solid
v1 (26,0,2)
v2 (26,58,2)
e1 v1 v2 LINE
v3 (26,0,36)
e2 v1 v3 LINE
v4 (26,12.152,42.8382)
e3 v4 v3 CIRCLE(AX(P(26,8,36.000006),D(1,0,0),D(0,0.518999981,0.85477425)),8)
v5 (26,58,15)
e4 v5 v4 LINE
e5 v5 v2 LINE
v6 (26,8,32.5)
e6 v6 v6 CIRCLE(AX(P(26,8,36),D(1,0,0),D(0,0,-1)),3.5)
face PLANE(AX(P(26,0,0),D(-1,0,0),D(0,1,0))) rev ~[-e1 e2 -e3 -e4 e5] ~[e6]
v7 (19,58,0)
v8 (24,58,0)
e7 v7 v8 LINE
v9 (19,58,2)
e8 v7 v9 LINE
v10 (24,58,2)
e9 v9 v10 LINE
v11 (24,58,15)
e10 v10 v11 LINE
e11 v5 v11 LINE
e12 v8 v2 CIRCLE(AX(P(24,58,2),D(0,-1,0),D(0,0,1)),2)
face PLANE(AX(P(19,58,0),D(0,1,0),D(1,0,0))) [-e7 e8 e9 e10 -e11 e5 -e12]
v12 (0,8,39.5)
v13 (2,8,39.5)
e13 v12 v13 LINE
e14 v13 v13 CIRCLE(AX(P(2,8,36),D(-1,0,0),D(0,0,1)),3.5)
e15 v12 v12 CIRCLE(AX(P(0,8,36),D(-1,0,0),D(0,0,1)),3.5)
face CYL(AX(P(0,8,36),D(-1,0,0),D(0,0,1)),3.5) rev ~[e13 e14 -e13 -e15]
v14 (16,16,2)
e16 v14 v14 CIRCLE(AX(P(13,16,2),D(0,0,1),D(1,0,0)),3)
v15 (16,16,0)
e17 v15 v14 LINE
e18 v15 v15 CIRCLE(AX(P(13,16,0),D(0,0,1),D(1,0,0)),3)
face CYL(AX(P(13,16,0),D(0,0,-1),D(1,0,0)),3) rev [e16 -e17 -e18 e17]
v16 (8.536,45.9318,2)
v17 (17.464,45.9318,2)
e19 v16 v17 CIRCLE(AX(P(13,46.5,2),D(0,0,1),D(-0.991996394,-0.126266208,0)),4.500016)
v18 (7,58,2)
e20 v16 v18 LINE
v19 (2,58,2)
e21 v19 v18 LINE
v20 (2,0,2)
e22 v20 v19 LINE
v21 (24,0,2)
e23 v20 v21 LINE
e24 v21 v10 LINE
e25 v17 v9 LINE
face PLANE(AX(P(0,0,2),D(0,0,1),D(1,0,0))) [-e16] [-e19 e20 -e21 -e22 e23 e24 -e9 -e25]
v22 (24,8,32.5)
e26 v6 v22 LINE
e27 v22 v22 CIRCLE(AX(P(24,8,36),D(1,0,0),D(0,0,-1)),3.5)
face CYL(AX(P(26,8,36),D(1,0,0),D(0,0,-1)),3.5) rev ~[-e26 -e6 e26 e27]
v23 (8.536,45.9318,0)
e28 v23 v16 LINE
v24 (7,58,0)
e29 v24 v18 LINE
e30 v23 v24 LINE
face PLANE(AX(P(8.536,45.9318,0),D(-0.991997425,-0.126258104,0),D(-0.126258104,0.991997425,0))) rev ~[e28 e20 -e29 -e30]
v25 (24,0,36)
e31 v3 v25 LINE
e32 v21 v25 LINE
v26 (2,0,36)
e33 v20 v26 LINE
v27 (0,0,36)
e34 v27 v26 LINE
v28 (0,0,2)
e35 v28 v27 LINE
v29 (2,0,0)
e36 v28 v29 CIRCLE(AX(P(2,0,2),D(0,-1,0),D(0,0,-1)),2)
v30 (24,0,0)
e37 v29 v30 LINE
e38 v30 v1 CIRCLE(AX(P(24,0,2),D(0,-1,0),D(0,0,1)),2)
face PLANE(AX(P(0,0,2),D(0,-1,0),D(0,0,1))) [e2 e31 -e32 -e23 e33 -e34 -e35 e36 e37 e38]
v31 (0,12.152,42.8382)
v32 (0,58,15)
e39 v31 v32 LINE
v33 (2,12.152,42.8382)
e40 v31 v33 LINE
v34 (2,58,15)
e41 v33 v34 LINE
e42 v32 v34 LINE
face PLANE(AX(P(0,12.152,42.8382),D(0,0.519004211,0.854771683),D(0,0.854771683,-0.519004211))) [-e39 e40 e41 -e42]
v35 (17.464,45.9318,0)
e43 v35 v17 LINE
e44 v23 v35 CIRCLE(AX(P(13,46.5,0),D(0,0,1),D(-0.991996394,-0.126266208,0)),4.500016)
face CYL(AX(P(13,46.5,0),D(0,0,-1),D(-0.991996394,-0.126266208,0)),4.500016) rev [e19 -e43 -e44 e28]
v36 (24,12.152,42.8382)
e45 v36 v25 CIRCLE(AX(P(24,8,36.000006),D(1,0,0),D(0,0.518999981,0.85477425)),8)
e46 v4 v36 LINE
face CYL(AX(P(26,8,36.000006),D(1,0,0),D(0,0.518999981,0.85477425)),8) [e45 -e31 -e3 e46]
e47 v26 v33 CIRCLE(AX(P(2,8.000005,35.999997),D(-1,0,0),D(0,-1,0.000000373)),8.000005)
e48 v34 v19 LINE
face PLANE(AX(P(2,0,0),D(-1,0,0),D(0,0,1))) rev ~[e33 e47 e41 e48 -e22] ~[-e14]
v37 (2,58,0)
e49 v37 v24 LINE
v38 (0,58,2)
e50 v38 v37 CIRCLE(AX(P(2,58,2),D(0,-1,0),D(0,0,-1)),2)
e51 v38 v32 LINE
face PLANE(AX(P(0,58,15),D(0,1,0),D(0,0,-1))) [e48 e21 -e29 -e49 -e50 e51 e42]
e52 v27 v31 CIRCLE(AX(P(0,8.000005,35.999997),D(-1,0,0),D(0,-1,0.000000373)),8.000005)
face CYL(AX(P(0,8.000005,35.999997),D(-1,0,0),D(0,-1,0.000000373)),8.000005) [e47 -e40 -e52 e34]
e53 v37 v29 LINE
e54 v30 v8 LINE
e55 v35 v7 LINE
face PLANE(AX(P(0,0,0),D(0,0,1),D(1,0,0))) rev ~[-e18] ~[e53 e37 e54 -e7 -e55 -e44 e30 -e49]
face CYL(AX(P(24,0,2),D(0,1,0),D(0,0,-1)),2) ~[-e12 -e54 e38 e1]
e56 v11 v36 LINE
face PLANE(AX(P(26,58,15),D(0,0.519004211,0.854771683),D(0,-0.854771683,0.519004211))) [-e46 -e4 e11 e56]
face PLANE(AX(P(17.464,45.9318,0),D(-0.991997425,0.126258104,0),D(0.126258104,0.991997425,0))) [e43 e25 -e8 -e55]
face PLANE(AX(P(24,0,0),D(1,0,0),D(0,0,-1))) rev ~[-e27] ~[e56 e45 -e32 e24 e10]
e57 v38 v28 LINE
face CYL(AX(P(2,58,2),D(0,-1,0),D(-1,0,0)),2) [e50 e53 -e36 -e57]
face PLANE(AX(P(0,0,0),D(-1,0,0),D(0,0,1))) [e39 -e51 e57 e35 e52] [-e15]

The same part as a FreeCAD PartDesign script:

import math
import FreeCAD as App
import Part
import Sketcher

V = App.Vector
Q = App.Units.Quantity


def edges_at(feature, points):
    """Names of the edges that pass closest to the given points."""
    edges = feature.Shape.Edges
    near = lambda p: min(range(len(edges)), key=lambda i: edges[i].distToShape(Part.Vertex(*p))[0])
    return sorted({f"Edge{near(p) + 1}" for p in points})

doc = App.newDocument("Part")
body = doc.addObject("PartDesign::Body", "Body")

# Sketch on XY plane
sketch1 = body.newObject("Sketcher::SketchObject", "Sketch")
sketch1.AttachmentSupport = (doc.getObject("XY_Plane"), [""])
sketch1.MapMode = "FlatFace"
sketch1.addGeometry([
    Part.LineSegment(V(0, 58, 0), V(0, 0, 0)),  # 0
    Part.LineSegment(V(0, 0, 0), V(26, 0, 0)),  # 1
    Part.LineSegment(V(26, 0, 0), V(26, 58, 0)),  # 2
    Part.LineSegment(V(26, 58, 0), V(19, 58, 0)),  # 3
    Part.LineSegment(V(19, 58, 0), V(17.464, 45.9318, 0)),  # 4
    Part.ArcOfCircle(Part.Circle(V(13, 46.5, 0), V(0, 0, 1), 4.500016), math.radians(-172.746116), math.radians(-7.253884)),  # 5
    Part.LineSegment(V(8.536, 45.9318, 0), V(7, 58, 0)),  # 6
    Part.LineSegment(V(7, 58, 0), V(0, 58, 0)),  # 7
    Part.Circle(V(13, 16, 0), V(0, 0, 1), 3),  # 8
], False)
sketch1.addConstraint([
    Sketcher.Constraint("Coincident", 0, 2, 1, 1),
    Sketcher.Constraint("Coincident", 1, 2, 2, 1),
    Sketcher.Constraint("Coincident", 2, 2, 3, 1),
    Sketcher.Constraint("Coincident", 3, 2, 4, 1),
    Sketcher.Constraint("Tangent", 4, 2, 5, 2),
    Sketcher.Constraint("Tangent", 5, 1, 6, 1),
    Sketcher.Constraint("Coincident", 6, 2, 7, 1),
    Sketcher.Constraint("Coincident", 7, 2, 0, 1),
    Sketcher.Constraint("Vertical", 0),
    Sketcher.Constraint("Horizontal", 1),
    Sketcher.Constraint("Vertical", 2),
    Sketcher.Constraint("Horizontal", 3),
    Sketcher.Constraint("Horizontal", 7),
    Sketcher.Constraint("Coincident", 0, 2, -1, 1),
    Sketcher.Constraint("Horizontal", 4, 2, 5, 1),
    Sketcher.Constraint("Horizontal", 3, 2, 6, 2),
    Sketcher.Constraint("Vertical", 5, 3, 8, 3),
    Sketcher.Constraint("Equal", 3, 7),
    Sketcher.Constraint("Diameter", 8, Q("6 mm")),
    Sketcher.Constraint("Radius", 5, Q("4.5 mm")),
    Sketcher.Constraint("DistanceX", 1, 1, 1, 2, Q("26 mm")),
    Sketcher.Constraint("DistanceY", 0, 2, 0, 1, Q("58 mm")),
    Sketcher.Constraint("DistanceY", -1, 1, 8, 3, Q("16 mm")),
    Sketcher.Constraint("DistanceX", 5, 3, 3, 2, Q("6 mm")),
    Sketcher.Constraint("DistanceY", 5, 3, 2, 2, Q("11.5 mm")),
])
pad1 = body.newObject("PartDesign::Pad", "Pad")
pad1.Profile = sketch1
pad1.Length = 2

# Sketch on YZ plane
sketch2 = body.newObject("Sketcher::SketchObject", "Sketch001")
sketch2.AttachmentSupport = (doc.getObject("YZ_Plane"), [""])
sketch2.MapMode = "FlatFace"
sketch2.AttachmentOffset = App.Placement(V(0, 0, 26), App.Rotation())
sketch2.addGeometry([
    Part.LineSegment(V(0, 36, 0), V(0, 0, 0)),  # 0
    Part.LineSegment(V(0, 0, 0), V(58, 0, 0)),  # 1
    Part.LineSegment(V(58, 0, 0), V(58, 15, 0)),  # 2
    Part.LineSegment(V(58, 15, 0), V(12.152, 42.8382, 0)),  # 3
    Part.ArcOfCircle(Part.Circle(V(8, 36, 0), V(0, 0, 1), 8), math.radians(58.734825), math.radians(180)),  # 4
    Part.Circle(V(8, 36, 0), V(0, 0, 1), 3.5),  # 5
], False)
sketch2.addConstraint([
    Sketcher.Constraint("Coincident", 0, 2, 1, 1),
    Sketcher.Constraint("Coincident", 1, 2, 2, 1),
    Sketcher.Constraint("Coincident", 2, 2, 3, 1),
    Sketcher.Constraint("Tangent", 3, 2, 4, 1),
    Sketcher.Constraint("Tangent", 4, 2, 0, 1),
    Sketcher.Constraint("Vertical", 0),
    Sketcher.Constraint("Horizontal", 1),
    Sketcher.Constraint("Vertical", 2),
    Sketcher.Constraint("Coincident", 0, 2, -1, 1),
    Sketcher.Constraint("Coincident", 5, 3, 4, 3),
    Sketcher.Constraint("Diameter", 5, Q("7 mm")),
    Sketcher.Constraint("Radius", 4, Q("8 mm")),
    Sketcher.Constraint("DistanceY", 0, 2, 0, 1, Q("36 mm")),
    Sketcher.Constraint("DistanceY", 2, 1, 2, 2, Q("15 mm")),
    Sketcher.Constraint("DistanceX", 1, 1, 1, 2, Q("58 mm")),
])
pad2 = body.newObject("PartDesign::Pad", "Pad001")
pad2.Profile = sketch2
pad2.Length = 2
pad2.Reversed = True

# Sketch on YZ plane
sketch3 = body.newObject("Sketcher::SketchObject", "Sketch002")
sketch3.AttachmentSupport = (doc.getObject("YZ_Plane"), [""])
sketch3.MapMode = "FlatFace"
sketch3.addGeometry([
    Part.LineSegment(V(58, 2, 0), V(0, 2, 0)),  # 0
    Part.LineSegment(V(0, 2, 0), V(0, 36, 0)),  # 1
    Part.ArcOfCircle(Part.Circle(V(8, 36, 0), V(0, 0, 1), 8), math.radians(58.734825), math.radians(180)),  # 2
    Part.LineSegment(V(12.152, 42.8382, 0), V(58, 15, 0)),  # 3
    Part.LineSegment(V(58, 15, 0), V(58, 2, 0)),  # 4
    Part.Circle(V(8, 36, 0), V(0, 0, 1), 3.5),  # 5
], False)
sketch3.addConstraint([
    Sketcher.Constraint("Coincident", 0, 2, 1, 1),
    Sketcher.Constraint("Tangent", 1, 2, 2, 2),
    Sketcher.Constraint("Tangent", 2, 1, 3, 1),
    Sketcher.Constraint("Coincident", 3, 2, 4, 1),
    Sketcher.Constraint("Coincident", 4, 2, 0, 1),
    Sketcher.Constraint("Horizontal", 0),
    Sketcher.Constraint("Vertical", 1),
    Sketcher.Constraint("Vertical", 4),
    Sketcher.Constraint("Coincident", 5, 3, 2, 3),
    Sketcher.Constraint("PointOnObject", 0, 2, -2),
    Sketcher.Constraint("Diameter", 5, Q("7 mm")),
    Sketcher.Constraint("Radius", 2, Q("8 mm")),
    Sketcher.Constraint("DistanceX", 0, 2, 0, 1, Q("58 mm")),
    Sketcher.Constraint("DistanceY", 1, 1, 1, 2, Q("34 mm")),
    Sketcher.Constraint("DistanceY", 4, 2, 4, 1, Q("13 mm")),
    Sketcher.Constraint("DistanceY", -1, 1, 2, 3, Q("36 mm")),
])
pad3 = body.newObject("PartDesign::Pad", "Pad002")
pad3.Profile = sketch3
pad3.Length = 2
doc.recompute()

fillet = body.newObject("PartDesign::Fillet", "Fillet")
fillet.Base = (pad3, edges_at(pad3, [(0, 29, 0), (26, 29, 0)]))
fillet.Radius = 2

doc.recompute()
